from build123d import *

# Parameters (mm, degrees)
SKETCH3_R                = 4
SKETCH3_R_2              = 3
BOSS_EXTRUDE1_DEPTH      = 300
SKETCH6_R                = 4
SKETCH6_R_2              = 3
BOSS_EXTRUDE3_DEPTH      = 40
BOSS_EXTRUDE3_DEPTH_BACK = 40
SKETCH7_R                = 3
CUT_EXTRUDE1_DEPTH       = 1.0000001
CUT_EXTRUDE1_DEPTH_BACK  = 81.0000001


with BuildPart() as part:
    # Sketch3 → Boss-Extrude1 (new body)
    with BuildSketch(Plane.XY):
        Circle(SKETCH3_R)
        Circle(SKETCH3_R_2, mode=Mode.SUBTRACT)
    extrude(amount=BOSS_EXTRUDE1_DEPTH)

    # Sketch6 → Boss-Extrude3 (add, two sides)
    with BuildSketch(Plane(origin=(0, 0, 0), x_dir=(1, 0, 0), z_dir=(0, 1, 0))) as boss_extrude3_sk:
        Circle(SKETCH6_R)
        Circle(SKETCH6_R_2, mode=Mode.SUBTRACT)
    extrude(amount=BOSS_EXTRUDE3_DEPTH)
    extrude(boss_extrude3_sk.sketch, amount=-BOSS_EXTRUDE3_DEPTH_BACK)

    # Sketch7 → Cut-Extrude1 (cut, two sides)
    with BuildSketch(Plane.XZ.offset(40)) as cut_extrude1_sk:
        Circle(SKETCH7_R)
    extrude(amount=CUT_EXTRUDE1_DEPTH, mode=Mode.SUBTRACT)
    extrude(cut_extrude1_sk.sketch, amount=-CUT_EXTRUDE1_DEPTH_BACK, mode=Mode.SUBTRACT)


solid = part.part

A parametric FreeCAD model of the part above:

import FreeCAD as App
import Part
import Sketcher

V = App.Vector

doc = App.newDocument("Part")
body = doc.addObject("PartDesign::Body", "Body")

# Sketch on XY plane
sketch1 = doc.addObject("Sketcher::SketchObject", "Sketch")
body.addObject(sketch1)
sketch1.AttachmentSupport = (doc.XY_Plane, [""])
sketch1.MapMode = "FlatFace"
sketch1.addGeometry([
    Part.Circle(V(0, 0, 0), V(0, 0, 1), 4),
    Part.Circle(V(0, 0, 0), V(0, 0, 1), 3),
], False)
sketch1.addConstraint([
    Sketcher.Constraint("Coincident", 0, 3, -1, 1),
    Sketcher.Constraint("Coincident", 1, 3, -1, 1),
    Sketcher.Constraint("Diameter", 0, 8.0),
    Sketcher.Constraint("Diameter", 1, 6.0),
])
pad1 = doc.addObject("PartDesign::Pad", "Pad")
body.addObject(pad1)
pad1.Profile = sketch1
pad1.Length = 300

# Sketch on XZ plane
sketch2 = doc.addObject("Sketcher::SketchObject", "Sketch001")
body.addObject(sketch2)
sketch2.AttachmentSupport = (doc.XZ_Plane, [""])
sketch2.MapMode = "FlatFace"
sketch2.addGeometry([
    Part.Circle(V(0, 0, 0), V(0, 0, 1), 4),
    Part.Circle(V(0, 0, 0), V(0, 0, 1), 3),
], False)
sketch2.addConstraint([
    Sketcher.Constraint("Coincident", 0, 3, -1, 1),
    Sketcher.Constraint("Coincident", 1, 3, -1, 1),
    Sketcher.Constraint("Diameter", 0, 8.0),
    Sketcher.Constraint("Diameter", 1, 6.0),
])
pad2 = doc.addObject("PartDesign::Pad", "Pad001")
body.addObject(pad2)
pad2.Profile = sketch2
pad2.Type = "TwoLengths"
pad2.Length = 40
pad2.Length2 = 40
pad2.Reversed = True

# Sketch on XZ plane
sketch3 = doc.addObject("Sketcher::SketchObject", "Sketch002")
body.addObject(sketch3)
sketch3.AttachmentSupport = (doc.XZ_Plane, [""])
sketch3.MapMode = "FlatFace"
sketch3.AttachmentOffset = App.Placement(V(0, 0, 40), App.Rotation())
sketch3.addGeometry(Part.Circle(V(0, 0, 0), V(0, 0, 1), 3), False)
sketch3.addConstraint([
    Sketcher.Constraint("Coincident", 0, 3, -1, 1),
    Sketcher.Constraint("Diameter", 0, 6.0),
])
pocket1 = doc.addObject("PartDesign::Pocket", "Pocket")
body.addObject(pocket1)
pocket1.Profile = sketch3
pocket1.Type = "ThroughAll"
pocket1.Midplane = True

doc.recompute()
